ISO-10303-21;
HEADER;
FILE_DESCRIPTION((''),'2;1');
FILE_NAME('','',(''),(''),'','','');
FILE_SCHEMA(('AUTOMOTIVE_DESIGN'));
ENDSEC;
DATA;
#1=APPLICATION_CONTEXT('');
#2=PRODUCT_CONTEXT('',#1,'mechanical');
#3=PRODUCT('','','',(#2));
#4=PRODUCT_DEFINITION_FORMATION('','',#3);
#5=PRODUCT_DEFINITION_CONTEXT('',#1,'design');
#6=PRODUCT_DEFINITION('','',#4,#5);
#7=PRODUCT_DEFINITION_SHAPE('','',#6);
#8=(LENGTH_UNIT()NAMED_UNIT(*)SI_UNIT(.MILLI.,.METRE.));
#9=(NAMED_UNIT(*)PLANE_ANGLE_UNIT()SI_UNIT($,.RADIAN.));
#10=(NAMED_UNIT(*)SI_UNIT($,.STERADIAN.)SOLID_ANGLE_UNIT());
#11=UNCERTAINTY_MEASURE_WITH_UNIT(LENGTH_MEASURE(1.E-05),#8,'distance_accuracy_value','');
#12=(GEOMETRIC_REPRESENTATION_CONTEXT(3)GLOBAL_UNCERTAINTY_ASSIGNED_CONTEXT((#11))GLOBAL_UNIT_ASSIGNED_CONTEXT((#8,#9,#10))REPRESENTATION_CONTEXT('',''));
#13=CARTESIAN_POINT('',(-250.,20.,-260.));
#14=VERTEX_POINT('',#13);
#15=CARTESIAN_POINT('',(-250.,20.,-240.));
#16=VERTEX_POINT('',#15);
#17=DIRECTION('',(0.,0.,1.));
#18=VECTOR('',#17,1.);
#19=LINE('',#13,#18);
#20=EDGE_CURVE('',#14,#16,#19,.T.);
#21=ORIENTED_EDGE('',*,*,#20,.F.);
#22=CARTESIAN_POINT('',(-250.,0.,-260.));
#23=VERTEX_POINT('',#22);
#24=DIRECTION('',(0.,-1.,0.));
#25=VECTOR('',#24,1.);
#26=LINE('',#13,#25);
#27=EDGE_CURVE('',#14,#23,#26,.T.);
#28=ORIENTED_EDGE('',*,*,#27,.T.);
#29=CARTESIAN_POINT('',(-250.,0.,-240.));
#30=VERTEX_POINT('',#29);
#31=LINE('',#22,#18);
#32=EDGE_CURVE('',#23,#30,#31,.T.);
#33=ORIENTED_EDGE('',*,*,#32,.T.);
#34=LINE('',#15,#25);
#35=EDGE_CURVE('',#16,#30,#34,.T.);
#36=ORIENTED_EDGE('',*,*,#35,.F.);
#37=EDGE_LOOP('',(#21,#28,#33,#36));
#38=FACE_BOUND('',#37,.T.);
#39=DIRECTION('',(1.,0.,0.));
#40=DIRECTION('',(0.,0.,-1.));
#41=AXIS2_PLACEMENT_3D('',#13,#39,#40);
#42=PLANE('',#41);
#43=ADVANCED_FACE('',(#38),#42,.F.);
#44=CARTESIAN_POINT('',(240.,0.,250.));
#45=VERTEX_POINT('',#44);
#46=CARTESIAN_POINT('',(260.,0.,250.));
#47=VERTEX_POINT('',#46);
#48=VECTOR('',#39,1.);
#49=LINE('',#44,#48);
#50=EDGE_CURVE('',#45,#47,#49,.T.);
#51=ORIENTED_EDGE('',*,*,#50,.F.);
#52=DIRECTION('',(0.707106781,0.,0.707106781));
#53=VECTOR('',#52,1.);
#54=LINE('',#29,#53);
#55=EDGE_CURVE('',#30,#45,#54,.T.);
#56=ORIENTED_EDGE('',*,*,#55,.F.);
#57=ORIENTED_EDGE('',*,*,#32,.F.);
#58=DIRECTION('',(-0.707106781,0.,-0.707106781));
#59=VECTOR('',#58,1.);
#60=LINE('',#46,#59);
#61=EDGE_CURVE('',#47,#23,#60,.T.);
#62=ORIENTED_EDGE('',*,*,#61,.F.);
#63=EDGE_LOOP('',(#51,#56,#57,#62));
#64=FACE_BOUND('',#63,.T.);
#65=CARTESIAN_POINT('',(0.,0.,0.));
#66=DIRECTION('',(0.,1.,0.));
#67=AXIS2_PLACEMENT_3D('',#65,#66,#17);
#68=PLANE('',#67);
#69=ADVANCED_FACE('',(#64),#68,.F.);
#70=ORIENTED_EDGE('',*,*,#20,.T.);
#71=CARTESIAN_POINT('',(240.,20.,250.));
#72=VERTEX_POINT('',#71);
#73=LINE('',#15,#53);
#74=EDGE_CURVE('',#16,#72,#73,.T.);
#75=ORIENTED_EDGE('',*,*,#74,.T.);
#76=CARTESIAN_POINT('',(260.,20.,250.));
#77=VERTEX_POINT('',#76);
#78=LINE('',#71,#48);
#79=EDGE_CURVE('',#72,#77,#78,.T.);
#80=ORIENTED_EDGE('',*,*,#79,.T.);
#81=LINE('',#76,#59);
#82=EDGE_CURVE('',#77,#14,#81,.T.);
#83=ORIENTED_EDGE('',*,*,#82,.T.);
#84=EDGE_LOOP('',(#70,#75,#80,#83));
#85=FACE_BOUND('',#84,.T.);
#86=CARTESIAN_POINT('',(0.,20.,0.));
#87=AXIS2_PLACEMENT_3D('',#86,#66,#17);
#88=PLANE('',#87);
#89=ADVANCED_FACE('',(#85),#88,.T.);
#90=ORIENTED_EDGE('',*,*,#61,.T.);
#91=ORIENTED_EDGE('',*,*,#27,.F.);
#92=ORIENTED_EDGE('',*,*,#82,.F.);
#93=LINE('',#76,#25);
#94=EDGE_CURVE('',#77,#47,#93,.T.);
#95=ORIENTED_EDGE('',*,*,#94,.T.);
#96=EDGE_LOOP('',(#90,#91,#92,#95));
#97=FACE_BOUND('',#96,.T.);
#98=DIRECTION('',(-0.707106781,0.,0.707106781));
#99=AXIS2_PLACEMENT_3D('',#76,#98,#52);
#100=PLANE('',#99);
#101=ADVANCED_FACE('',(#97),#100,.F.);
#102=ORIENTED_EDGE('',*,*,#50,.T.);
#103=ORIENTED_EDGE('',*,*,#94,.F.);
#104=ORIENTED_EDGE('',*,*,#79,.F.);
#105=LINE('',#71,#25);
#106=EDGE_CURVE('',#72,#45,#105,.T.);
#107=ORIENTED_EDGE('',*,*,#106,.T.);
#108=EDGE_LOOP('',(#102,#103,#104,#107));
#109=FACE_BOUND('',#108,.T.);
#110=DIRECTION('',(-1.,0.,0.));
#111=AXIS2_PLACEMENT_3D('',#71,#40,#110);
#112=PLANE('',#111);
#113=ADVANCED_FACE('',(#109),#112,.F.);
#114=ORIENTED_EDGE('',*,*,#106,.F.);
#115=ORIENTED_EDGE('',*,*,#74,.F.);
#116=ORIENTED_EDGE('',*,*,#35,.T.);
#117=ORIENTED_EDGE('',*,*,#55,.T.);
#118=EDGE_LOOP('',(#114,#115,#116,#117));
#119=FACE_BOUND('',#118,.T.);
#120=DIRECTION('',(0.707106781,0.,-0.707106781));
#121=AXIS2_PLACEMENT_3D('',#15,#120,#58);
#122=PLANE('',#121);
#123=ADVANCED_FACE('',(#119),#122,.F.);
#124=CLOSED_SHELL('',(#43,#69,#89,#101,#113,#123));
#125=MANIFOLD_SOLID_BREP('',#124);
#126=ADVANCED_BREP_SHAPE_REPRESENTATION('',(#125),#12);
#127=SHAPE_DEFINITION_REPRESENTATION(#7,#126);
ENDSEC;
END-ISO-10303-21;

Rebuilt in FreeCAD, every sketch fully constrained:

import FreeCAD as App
import Part
import Sketcher


def add_polygon(sketch, points):
    """Adds a closed chain of lines whose ends are joined by coincident constraints."""
    first, n = sketch.GeometryCount, len(points)
    for a, b in zip(points, points[1:] + points[:1]):
        sketch.addGeometry(Part.LineSegment(App.Vector(*a, 0), App.Vector(*b, 0)), False)
    for i in range(n):
        sketch.addConstraint(Sketcher.Constraint("Coincident", first + i, 2, first + (i + 1) % n, 1))

doc = App.newDocument("Part")
body = doc.addObject("PartDesign::Body", "Body")

# Sketch on XZ plane
sketch1 = body.newObject("Sketcher::SketchObject", "Sketch")
sketch1.AttachmentSupport = (doc.getObject("XZ_Plane"), [""])
sketch1.MapMode = "FlatFace"
add_polygon(sketch1, [(-250, -240), (240, 250), (260, 250), (-250, -260)])  # lines 0-3
sketch1.addConstraint(Sketcher.Constraint("Horizontal", 1))
sketch1.addConstraint(Sketcher.Constraint("Vertical", 3))
sketch1.addConstraint(Sketcher.Constraint("Parallel", 0, 2))
sketch1.addConstraint(Sketcher.Constraint("Equal", 1, 3))
sketch1.addConstraint(Sketcher.Constraint("DistanceX", 1, 1, 1, 2, 20.0))
sketch1.addConstraint(Sketcher.Constraint("DistanceX", -1, 1, 0, 2, 240.0))
sketch1.addConstraint(Sketcher.Constraint("DistanceY", -1, 1, 0, 2, 250.0))
sketch1.addConstraint(Sketcher.Constraint("DistanceX", 2, 2, -1, 1, 250.0))
pad1 = body.newObject("PartDesign::Pad", "Pad")
pad1.Profile = sketch1
pad1.Length = 20
pad1.Reversed = True

doc.recompute()
